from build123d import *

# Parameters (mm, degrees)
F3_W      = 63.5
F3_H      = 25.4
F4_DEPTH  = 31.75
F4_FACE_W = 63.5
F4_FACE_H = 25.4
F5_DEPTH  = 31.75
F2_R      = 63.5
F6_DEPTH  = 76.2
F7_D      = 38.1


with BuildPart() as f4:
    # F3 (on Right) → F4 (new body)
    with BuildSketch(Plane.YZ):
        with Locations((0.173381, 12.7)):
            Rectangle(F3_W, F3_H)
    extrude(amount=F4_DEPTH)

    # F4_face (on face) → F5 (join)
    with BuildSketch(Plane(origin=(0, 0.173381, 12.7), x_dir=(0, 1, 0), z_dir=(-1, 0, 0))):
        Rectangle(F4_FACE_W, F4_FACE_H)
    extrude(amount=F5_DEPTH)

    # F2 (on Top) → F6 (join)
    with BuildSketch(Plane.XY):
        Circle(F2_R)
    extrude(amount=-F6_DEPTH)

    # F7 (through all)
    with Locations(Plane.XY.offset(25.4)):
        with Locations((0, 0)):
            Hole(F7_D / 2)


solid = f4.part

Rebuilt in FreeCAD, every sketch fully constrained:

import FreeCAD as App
import Part
import Sketcher

V = App.Vector
Q = App.Units.Quantity

doc = App.newDocument("Part")
body = doc.addObject("PartDesign::Body", "Body")

# Sketch on YZ plane
sketch1 = body.newObject("Sketcher::SketchObject", "Sketch")
sketch1.AttachmentSupport = (doc.getObject("YZ_Plane"), [""])
sketch1.MapMode = "FlatFace"
sketch1.addGeometry([
    Part.LineSegment(V(-32, 25, 0), V(-32, 0, 0)),
    Part.LineSegment(V(-32, 0, 0), V(32, 0, 0)),
    Part.LineSegment(V(32, 0, 0), V(32, 25, 0)),
    Part.LineSegment(V(32, 25, 0), V(-32, 25, 0)),
], False)
sketch1.addConstraint([
    Sketcher.Constraint("Coincident", 0, 2, 1, 1),
    Sketcher.Constraint("Coincident", 1, 2, 2, 1),
    Sketcher.Constraint("Coincident", 2, 2, 3, 1),
    Sketcher.Constraint("Coincident", 3, 2, 0, 1),
    Sketcher.Constraint("Vertical", 0),
    Sketcher.Constraint("Horizontal", 1),
    Sketcher.Constraint("Vertical", 2),
    Sketcher.Constraint("Horizontal", 3),
    Sketcher.Constraint("PointOnObject", 0, 2, -1),
    Sketcher.Constraint("DistanceY", 0, 2, 0, 1, Q("1 in")),
    Sketcher.Constraint("DistanceX", 1, 1, 1, 2, Q("2.5 in")),
    Sketcher.Constraint("DistanceX", 0, 2, -1, 1, Q("31.576619 mm")),
])
pad1 = body.newObject("PartDesign::Pad", "Pad")
pad1.Profile = sketch1
pad1.Length = Q("1.25 in")

# Sketch on YZ plane
sketch2 = body.newObject("Sketcher::SketchObject", "Sketch001")
sketch2.AttachmentSupport = (doc.getObject("YZ_Plane"), [""])
sketch2.MapMode = "FlatFace"
sketch2.addGeometry([
    Part.LineSegment(V(-32, 0, 0), V(-32, 25, 0)),
    Part.LineSegment(V(-32, 25, 0), V(32, 25, 0)),
    Part.LineSegment(V(32, 25, 0), V(32, 0, 0)),
    Part.LineSegment(V(32, 0, 0), V(-32, 0, 0)),
], False)
sketch2.addConstraint([
    Sketcher.Constraint("Coincident", 0, 2, 1, 1),
    Sketcher.Constraint("Coincident", 1, 2, 2, 1),
    Sketcher.Constraint("Coincident", 2, 2, 3, 1),
    Sketcher.Constraint("Coincident", 3, 2, 0, 1),
    Sketcher.Constraint("Vertical", 0),
    Sketcher.Constraint("Horizontal", 1),
    Sketcher.Constraint("Vertical", 2),
    Sketcher.Constraint("Horizontal", 3),
    Sketcher.Constraint("PointOnObject", 2, 2, -1),
    Sketcher.Constraint("DistanceY", 0, 1, 0, 2, Q("1 in")),
    Sketcher.Constraint("DistanceX", 1, 1, 1, 2, Q("2.5 in")),
    Sketcher.Constraint("DistanceX", 0, 2, -1, 1, Q("31.576619 mm")),
])
pad2 = body.newObject("PartDesign::Pad", "Pad001")
pad2.Profile = sketch2
pad2.Length = Q("1.25 in")
pad2.Reversed = True

# Sketch on XY plane
sketch3 = body.newObject("Sketcher::SketchObject", "Sketch002")
sketch3.AttachmentSupport = (doc.getObject("XY_Plane"), [""])
sketch3.MapMode = "FlatFace"
sketch3.addGeometry(Part.Circle(V(0, 0, 0), V(0, 0, 1), 64), False)
sketch3.addConstraint([
    Sketcher.Constraint("Coincident", 0, 3, -1, 1),
    Sketcher.Constraint("Diameter", 0, Q("5 in")),
])
pad3 = body.newObject("PartDesign::Pad", "Pad002")
pad3.Profile = sketch3
pad3.Length = Q("3 in")
pad3.Reversed = True

# Sketch on XY plane
sketch4 = body.newObject("Sketcher::SketchObject", "Sketch003")
sketch4.AttachmentSupport = (doc.getObject("XY_Plane"), [""])
sketch4.MapMode = "FlatFace"
sketch4.AttachmentOffset = App.Placement(V(0, 0, 1 * 25.4), App.Rotation())
sketch4.addGeometry(Part.Circle(V(0, 0, 0), V(0, 0, 1), 19), False)
sketch4.addConstraint([
    Sketcher.Constraint("Coincident", 0, 3, -1, 1),
    Sketcher.Constraint("Diameter", 0, Q("1.5 in")),
])
doc.recompute()
hole = body.newObject("PartDesign::Hole", "Hole")
hole.Profile = sketch4
hole.ThreadType = "None"
hole.Diameter = Q("1.5 in")
hole.DepthType = "ThroughAll"

doc.recompute()
